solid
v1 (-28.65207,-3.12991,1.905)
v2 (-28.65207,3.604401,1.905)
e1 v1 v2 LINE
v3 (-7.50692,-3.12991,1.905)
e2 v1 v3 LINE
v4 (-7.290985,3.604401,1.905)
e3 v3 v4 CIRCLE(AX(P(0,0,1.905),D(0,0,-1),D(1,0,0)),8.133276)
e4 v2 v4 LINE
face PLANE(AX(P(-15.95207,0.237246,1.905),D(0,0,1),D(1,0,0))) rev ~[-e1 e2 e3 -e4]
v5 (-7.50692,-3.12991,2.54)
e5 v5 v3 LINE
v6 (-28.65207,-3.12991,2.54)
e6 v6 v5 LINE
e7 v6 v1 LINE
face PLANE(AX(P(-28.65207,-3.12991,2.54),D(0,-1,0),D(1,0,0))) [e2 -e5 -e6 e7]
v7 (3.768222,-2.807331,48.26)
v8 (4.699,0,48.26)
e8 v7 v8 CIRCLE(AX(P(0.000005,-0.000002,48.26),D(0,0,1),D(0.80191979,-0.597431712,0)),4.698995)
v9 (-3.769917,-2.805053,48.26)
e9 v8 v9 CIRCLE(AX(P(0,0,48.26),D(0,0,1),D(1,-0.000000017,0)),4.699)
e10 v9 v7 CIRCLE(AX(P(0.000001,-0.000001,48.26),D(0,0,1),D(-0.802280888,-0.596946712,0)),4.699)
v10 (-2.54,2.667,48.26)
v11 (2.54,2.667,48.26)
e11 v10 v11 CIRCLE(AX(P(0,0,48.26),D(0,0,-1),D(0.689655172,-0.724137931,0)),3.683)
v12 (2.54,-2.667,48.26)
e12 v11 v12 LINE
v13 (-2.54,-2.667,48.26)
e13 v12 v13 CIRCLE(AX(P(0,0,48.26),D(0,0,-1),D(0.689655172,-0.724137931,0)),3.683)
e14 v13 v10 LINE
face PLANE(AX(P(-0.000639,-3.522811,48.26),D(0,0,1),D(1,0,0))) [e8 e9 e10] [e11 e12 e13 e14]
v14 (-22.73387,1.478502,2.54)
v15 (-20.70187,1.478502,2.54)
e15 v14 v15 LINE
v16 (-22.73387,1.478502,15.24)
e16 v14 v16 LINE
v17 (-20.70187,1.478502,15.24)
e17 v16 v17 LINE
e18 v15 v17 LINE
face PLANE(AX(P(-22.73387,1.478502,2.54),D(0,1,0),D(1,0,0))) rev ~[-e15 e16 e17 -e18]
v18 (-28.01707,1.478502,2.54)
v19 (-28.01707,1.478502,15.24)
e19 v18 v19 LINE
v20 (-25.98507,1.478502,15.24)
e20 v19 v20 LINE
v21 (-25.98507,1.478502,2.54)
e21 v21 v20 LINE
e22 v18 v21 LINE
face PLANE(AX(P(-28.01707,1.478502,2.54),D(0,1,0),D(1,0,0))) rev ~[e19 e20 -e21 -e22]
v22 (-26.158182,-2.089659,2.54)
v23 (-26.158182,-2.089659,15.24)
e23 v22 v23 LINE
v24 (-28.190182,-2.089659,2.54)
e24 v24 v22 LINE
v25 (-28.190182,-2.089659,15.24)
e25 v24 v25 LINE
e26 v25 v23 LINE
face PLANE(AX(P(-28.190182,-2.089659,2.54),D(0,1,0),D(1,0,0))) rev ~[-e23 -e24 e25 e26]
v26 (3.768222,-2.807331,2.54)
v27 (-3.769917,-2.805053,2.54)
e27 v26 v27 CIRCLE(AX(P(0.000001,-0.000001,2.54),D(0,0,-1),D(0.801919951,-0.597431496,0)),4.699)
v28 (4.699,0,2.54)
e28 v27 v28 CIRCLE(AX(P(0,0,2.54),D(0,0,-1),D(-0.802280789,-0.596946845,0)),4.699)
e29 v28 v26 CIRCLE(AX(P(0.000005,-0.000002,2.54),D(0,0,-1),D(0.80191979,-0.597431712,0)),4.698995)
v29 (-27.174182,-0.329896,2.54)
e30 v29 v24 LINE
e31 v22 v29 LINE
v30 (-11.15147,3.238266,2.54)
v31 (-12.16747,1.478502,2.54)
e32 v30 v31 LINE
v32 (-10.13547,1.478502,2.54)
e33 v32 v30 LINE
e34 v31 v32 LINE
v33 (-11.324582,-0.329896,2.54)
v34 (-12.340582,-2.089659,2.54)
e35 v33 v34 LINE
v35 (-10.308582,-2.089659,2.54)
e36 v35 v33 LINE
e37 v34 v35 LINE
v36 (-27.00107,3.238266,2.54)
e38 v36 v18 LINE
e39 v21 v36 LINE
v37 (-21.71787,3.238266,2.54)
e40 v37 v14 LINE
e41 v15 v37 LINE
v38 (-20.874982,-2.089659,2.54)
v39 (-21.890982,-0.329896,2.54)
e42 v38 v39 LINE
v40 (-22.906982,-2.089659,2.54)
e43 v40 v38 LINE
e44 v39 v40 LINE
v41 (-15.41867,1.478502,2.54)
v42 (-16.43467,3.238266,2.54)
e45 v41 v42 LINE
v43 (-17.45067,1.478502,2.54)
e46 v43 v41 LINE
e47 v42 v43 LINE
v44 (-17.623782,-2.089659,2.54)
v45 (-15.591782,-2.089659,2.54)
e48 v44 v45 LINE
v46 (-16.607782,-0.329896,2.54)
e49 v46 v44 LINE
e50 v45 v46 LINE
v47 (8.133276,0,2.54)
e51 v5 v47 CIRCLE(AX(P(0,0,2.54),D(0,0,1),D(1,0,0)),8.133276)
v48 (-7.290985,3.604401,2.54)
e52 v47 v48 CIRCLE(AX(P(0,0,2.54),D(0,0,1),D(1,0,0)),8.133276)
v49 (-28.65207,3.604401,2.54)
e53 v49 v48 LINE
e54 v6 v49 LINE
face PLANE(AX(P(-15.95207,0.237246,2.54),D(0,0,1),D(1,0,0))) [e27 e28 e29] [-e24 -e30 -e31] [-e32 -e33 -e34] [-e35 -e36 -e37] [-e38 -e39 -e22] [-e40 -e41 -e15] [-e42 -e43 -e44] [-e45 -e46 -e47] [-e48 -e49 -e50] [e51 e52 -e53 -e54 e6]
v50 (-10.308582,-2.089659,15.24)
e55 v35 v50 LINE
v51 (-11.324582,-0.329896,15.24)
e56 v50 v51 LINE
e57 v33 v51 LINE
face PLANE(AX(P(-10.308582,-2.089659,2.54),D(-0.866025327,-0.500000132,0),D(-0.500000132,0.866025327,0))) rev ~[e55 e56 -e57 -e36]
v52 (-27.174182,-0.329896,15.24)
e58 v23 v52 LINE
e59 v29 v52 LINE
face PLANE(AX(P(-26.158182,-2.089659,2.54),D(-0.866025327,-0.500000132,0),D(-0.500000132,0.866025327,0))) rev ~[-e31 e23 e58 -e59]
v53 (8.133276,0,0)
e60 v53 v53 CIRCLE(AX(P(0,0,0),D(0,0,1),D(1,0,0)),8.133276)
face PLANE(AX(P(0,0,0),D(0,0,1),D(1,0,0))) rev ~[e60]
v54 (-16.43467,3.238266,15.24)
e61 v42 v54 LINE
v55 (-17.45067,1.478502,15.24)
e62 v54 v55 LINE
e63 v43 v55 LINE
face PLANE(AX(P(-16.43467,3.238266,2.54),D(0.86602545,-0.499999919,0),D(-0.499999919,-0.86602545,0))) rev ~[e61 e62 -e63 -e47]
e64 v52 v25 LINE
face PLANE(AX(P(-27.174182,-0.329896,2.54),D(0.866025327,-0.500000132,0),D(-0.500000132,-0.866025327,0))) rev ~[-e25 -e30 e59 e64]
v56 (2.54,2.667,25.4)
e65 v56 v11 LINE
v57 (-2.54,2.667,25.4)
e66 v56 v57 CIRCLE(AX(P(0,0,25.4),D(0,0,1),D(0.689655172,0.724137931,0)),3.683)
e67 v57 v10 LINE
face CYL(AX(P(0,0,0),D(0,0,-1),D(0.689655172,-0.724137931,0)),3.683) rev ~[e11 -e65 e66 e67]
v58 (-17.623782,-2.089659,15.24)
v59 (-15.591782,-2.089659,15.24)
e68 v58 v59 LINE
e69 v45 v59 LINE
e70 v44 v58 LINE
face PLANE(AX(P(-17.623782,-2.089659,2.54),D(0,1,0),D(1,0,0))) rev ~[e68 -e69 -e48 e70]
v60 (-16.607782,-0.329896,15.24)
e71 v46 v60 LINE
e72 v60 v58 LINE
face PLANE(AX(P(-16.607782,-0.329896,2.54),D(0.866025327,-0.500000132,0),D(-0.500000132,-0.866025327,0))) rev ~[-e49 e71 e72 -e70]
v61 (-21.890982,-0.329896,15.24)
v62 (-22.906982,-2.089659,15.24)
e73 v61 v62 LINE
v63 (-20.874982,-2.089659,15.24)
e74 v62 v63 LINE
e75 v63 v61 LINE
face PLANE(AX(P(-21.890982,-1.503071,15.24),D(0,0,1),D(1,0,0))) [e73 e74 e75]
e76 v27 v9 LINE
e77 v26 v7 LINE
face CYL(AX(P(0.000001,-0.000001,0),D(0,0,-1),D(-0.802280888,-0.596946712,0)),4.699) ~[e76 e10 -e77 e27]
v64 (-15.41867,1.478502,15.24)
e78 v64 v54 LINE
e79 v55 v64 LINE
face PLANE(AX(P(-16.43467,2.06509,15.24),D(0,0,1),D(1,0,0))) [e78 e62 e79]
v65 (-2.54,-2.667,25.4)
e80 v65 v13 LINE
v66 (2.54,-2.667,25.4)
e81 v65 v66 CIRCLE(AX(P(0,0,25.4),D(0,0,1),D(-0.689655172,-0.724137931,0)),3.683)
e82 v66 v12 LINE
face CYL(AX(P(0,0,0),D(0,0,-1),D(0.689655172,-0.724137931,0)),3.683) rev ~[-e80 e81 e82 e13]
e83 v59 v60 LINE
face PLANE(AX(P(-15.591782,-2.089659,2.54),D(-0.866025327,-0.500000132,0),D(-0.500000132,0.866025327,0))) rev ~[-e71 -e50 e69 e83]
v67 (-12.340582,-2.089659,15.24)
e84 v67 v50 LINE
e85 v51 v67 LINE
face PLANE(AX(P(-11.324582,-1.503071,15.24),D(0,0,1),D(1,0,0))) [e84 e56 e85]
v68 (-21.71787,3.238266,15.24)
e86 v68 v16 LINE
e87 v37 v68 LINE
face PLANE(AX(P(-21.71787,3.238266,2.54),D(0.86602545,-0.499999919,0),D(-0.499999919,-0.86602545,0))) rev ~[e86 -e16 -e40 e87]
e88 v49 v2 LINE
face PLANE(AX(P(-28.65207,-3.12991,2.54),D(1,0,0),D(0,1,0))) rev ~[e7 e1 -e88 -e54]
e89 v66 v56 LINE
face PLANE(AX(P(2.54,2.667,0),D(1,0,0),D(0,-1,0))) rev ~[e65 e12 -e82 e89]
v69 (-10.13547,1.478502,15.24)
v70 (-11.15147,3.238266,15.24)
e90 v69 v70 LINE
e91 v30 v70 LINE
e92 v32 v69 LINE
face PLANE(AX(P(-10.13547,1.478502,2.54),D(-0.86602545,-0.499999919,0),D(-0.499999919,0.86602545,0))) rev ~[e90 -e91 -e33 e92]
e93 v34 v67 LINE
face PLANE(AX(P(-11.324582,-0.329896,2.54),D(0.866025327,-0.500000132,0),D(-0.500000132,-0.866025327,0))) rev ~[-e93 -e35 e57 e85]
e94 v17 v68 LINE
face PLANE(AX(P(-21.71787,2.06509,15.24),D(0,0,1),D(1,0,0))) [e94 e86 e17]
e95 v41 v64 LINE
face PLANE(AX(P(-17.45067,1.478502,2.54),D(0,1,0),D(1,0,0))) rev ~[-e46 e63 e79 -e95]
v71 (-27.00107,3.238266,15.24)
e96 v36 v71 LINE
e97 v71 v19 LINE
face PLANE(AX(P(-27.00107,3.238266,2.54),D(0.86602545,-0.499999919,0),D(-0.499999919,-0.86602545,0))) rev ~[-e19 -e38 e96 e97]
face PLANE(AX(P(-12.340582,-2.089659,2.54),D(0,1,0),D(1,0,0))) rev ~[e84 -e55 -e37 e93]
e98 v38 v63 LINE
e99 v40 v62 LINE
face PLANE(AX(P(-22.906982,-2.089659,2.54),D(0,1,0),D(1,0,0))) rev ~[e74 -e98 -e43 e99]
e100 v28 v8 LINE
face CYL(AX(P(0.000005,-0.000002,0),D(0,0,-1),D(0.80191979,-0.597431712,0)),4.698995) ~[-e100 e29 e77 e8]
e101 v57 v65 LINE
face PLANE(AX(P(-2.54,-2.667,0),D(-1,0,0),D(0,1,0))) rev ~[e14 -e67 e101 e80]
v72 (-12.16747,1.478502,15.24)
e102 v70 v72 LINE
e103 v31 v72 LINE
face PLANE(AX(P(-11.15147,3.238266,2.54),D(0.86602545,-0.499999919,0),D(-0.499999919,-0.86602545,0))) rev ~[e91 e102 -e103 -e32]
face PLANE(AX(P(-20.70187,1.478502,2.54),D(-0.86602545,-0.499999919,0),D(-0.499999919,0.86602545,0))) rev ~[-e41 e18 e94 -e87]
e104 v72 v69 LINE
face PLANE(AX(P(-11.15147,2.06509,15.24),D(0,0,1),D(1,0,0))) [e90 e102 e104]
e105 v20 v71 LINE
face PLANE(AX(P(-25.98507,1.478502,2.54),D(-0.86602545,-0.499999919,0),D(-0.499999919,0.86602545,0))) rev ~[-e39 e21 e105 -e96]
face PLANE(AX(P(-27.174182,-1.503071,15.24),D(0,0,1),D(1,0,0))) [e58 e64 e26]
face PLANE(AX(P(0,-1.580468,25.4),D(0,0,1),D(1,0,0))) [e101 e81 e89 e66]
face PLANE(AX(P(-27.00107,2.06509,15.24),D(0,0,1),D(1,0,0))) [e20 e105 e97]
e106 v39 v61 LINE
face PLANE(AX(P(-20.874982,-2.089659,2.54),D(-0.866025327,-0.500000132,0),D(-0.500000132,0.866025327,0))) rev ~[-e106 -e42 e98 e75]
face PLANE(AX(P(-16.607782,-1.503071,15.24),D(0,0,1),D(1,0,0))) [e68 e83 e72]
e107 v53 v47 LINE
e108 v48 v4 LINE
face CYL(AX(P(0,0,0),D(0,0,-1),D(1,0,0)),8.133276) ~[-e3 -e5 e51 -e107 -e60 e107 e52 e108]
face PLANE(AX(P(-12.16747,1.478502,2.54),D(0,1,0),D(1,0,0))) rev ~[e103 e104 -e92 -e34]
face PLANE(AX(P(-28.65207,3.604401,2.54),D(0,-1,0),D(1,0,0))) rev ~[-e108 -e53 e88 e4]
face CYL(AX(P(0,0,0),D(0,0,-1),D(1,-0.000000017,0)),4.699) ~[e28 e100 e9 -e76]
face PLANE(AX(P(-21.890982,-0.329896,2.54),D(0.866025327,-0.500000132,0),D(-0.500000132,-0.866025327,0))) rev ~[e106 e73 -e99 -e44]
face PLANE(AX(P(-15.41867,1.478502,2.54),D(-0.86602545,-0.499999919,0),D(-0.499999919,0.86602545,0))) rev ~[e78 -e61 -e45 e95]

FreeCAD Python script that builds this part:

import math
import FreeCAD as App
import Part
import Sketcher

V = App.Vector
Q = App.Units.Quantity


def add_polygon(sketch, points):
    """Adds a closed chain of lines whose ends are joined by coincident constraints."""
    first, n = sketch.GeometryCount, len(points)
    for a, b in zip(points, points[1:] + points[:1]):
        sketch.addGeometry(Part.LineSegment(App.Vector(*a, 0), App.Vector(*b, 0)), False)
    for i in range(n):
        sketch.addConstraint(Sketcher.Constraint("Coincident", first + i, 2, first + (i + 1) % n, 1))

doc = App.newDocument("Part")
body = doc.addObject("PartDesign::Body", "Body")

# Sketch on XY plane
sketch1 = body.newObject("Sketcher::SketchObject", "Sketch")
sketch1.AttachmentSupport = (doc.getObject("XY_Plane"), [""])
sketch1.MapMode = "FlatFace"
sketch1.addGeometry([
    Part.ArcOfCircle(Part.Circle(V(0, 0, 0), V(0, 0, 1), 4.7), math.radians(0), math.radians(217)),  # 0
    Part.ArcOfCircle(Part.Circle(V(0, 0, 0), V(0, 0, 1), 4.7), math.radians(-143), math.radians(-37)),  # 1
    Part.ArcOfCircle(Part.Circle(V(0, 0, 0), V(0, 0, 1), 4.7), math.radians(-37), math.radians(0)),  # 2
    Part.ArcOfCircle(Part.Circle(V(0, 0, 0), V(0, 0, 1), 3.7), math.radians(-134), math.radians(-46)),  # 3
    Part.LineSegment(V(-2.5, -2.7, 0), V(-2.5, 2.7, 0)),  # 4
    Part.ArcOfCircle(Part.Circle(V(0, 0, 0), V(0, 0, 1), 3.7), math.radians(46), math.radians(134)),  # 5
    Part.LineSegment(V(2.5, 2.7, 0), V(2.5, -2.7, 0)),  # 6
], False)
sketch1.addConstraint([
    Sketcher.Constraint("Tangent", 0, 2, 1, 1),
    Sketcher.Constraint("Tangent", 1, 2, 2, 1),
    Sketcher.Constraint("Tangent", 2, 2, 0, 1),
    Sketcher.Constraint("Coincident", 3, 1, 4, 1),
    Sketcher.Constraint("Coincident", 4, 2, 5, 2),
    Sketcher.Constraint("Coincident", 5, 1, 6, 1),
    Sketcher.Constraint("Coincident", 6, 2, 3, 2),
    Sketcher.Constraint("Vertical", 4),
    Sketcher.Constraint("Vertical", 6),
    Sketcher.Constraint("Coincident", 0, 3, -1, 1),
    Sketcher.Constraint("Coincident", 3, 3, -1, 1),
    Sketcher.Constraint("Coincident", 5, 3, -1, 1),
    Sketcher.Constraint("Equal", 3, 5),
    Sketcher.Constraint("PointOnObject", 2, 2, -1),
    Sketcher.Constraint("Horizontal", 4, 2, 5, 1),
    Sketcher.Constraint("Radius", 0, Q("0.185 in")),
    Sketcher.Constraint("Radius", 3, Q("0.145 in")),
    Sketcher.Constraint("DistanceY", 4, 1, 4, 2, Q("0.21 in")),
    Sketcher.Constraint("DistanceX", -1, 1, 1, 2, 3.768222),
    Sketcher.Constraint("DistanceX", 0, 2, 2, 3, 3.769922),
])
pad1 = body.newObject("PartDesign::Pad", "Pad")
pad1.Profile = sketch1
pad1.Length = Q("1.9 in")

# Sketch on XY plane
sketch2 = body.newObject("Sketcher::SketchObject", "Sketch001")
sketch2.AttachmentSupport = (doc.getObject("XY_Plane"), [""])
sketch2.MapMode = "FlatFace"
sketch2.addGeometry([
    Part.ArcOfCircle(Part.Circle(V(0, 0, 0), V(0, 0, 1), 3.7), math.radians(-134), math.radians(-46)),
    Part.LineSegment(V(2.5, -2.7, 0), V(2.5, 2.7, 0)),
    Part.ArcOfCircle(Part.Circle(V(0, 0, 0), V(0, 0, 1), 3.7), math.radians(46), math.radians(134)),
    Part.LineSegment(V(-2.5, 2.7, 0), V(-2.5, -2.7, 0)),
], False)
sketch2.addConstraint([
    Sketcher.Constraint("Coincident", 0, 2, 1, 1),
    Sketcher.Constraint("Coincident", 1, 2, 2, 1),
    Sketcher.Constraint("Coincident", 2, 2, 3, 1),
    Sketcher.Constraint("Coincident", 3, 2, 0, 1),
    Sketcher.Constraint("Vertical", 1),
    Sketcher.Constraint("Vertical", 3),
    Sketcher.Constraint("Coincident", 0, 3, -1, 1),
    Sketcher.Constraint("Coincident", 2, 3, -1, 1),
    Sketcher.Constraint("Equal", 0, 2),
    Sketcher.Constraint("Horizontal", 1, 2, 2, 2),
    Sketcher.Constraint("Radius", 0, Q("0.145 in")),
    Sketcher.Constraint("DistanceY", 1, 1, 1, 2, Q("0.21 in")),
])
pad2 = body.newObject("PartDesign::Pad", "Pad001")
pad2.Profile = sketch2
pad2.Length = Q("1 in")

# Sketch on XY plane
sketch3 = body.newObject("Sketcher::SketchObject", "Sketch002")
sketch3.AttachmentSupport = (doc.getObject("XY_Plane"), [""])
sketch3.MapMode = "FlatFace"
sketch3.addGeometry(Part.Circle(V(0, 0, 0), V(0, 0, 1), 8), False)
sketch3.addConstraint([
    Sketcher.Constraint("Coincident", 0, 3, -1, 1),
    Sketcher.Constraint("Diameter", 0, 16.266552),
])
pad3 = body.newObject("PartDesign::Pad", "Pad002")
pad3.Profile = sketch3
pad3.Length = Q("0.1 in")

# Sketch on XY plane
sketch4 = body.newObject("Sketcher::SketchObject", "Sketch003")
sketch4.AttachmentSupport = (doc.getObject("XY_Plane"), [""])
sketch4.MapMode = "FlatFace"
sketch4.AttachmentOffset = App.Placement(V(0, 0, 0.1 * 25.4), App.Rotation())
add_polygon(sketch4, [(-29, 4), (-29, -3), (-3, -3), (-3, 4)])  # lines 0-3
sketch4.addConstraint([
    Sketcher.Constraint("Vertical", 0),
    Sketcher.Constraint("Horizontal", 1),
    Sketcher.Constraint("Vertical", 2),
    Sketcher.Constraint("Horizontal", 3),
    Sketcher.Constraint("DistanceX", 1, 1, 1, 2, Q("1 in")),
    Sketcher.Constraint("DistanceY", 0, 2, 0, 1, 6.734311),
    Sketcher.Constraint("DistanceY", -1, 1, 2, 2, 3.604401),
    Sketcher.Constraint("DistanceX", 0, 2, -1, 1, 28.65207),
])
pad4 = body.newObject("PartDesign::Pad", "Pad003")
pad4.Profile = sketch4
pad4.Length = Q("0.025 in")
pad4.Reversed = True

# Sketch on XY plane
sketch5 = body.newObject("Sketcher::SketchObject", "Sketch004")
sketch5.AttachmentSupport = (doc.getObject("XY_Plane"), [""])
sketch5.MapMode = "FlatFace"
sketch5.AttachmentOffset = App.Placement(V(0, 0, 0.1 * 25.4), App.Rotation())
add_polygon(sketch5, [(-27, 3.2), (-28, 1.5), (-26, 1.5)])  # lines 0-2
add_polygon(sketch5, [(-22.7, 1.5), (-20.7, 1.5), (-21.7, 3.2)])  # lines 3-5
add_polygon(sketch5, [(-17.5, 1.5), (-15.4, 1.5), (-16.4, 3.2)])  # lines 6-8
add_polygon(sketch5, [(-12.2, 1.5), (-10.1, 1.5), (-11.2, 3.2)])  # lines 9-11
add_polygon(sketch5, [(-27.2, -0.3), (-28.2, -2.1), (-26.2, -2.1)])  # lines 12-14
add_polygon(sketch5, [(-22.9, -2.1), (-20.9, -2.1), (-21.9, -0.3)])  # lines 15-17
add_polygon(sketch5, [(-17.6, -2.1), (-15.6, -2.1), (-16.6, -0.3)])  # lines 18-20
add_polygon(sketch5, [(-12.3, -2.1), (-10.3, -2.1), (-11.3, -0.3)])  # lines 21-23
sketch5.addConstraint([
    Sketcher.Constraint("Horizontal", 1),
    Sketcher.Constraint("Horizontal", 3),
    Sketcher.Constraint("Horizontal", 6),
    Sketcher.Constraint("Horizontal", 9),
    Sketcher.Constraint("Horizontal", 13),
    Sketcher.Constraint("Horizontal", 15),
    Sketcher.Constraint("Horizontal", 18),
    Sketcher.Constraint("Horizontal", 21),
    Sketcher.Constraint("Parallel", 2, 4),
    Sketcher.Constraint("Parallel", 0, 5),
    Sketcher.Constraint("Parallel", 4, 7),
    Sketcher.Constraint("Parallel", 5, 8),
    Sketcher.Constraint("Parallel", 7, 10),
    Sketcher.Constraint("Parallel", 8, 11),
    Sketcher.Constraint("Parallel", 11, 12),
    Sketcher.Constraint("Parallel", 10, 14),
    Sketcher.Constraint("Parallel", 14, 16),
    Sketcher.Constraint("Parallel", 12, 17),
    Sketcher.Constraint("Parallel", 16, 19),
    Sketcher.Constraint("Parallel", 17, 20),
    Sketcher.Constraint("Parallel", 19, 22),
    Sketcher.Constraint("Parallel", 20, 23),
    Sketcher.Constraint("Horizontal", 1, 2, 3, 2),
    Sketcher.Constraint("Horizontal", 2, 2, 4, 2),
    Sketcher.Constraint("Horizontal", 5, 2, 6, 2),
    Sketcher.Constraint("Horizontal", 4, 2, 7, 2),
    Sketcher.Constraint("Horizontal", 8, 2, 9, 2),
    Sketcher.Constraint("Horizontal", 7, 2, 10, 2),
    Sketcher.Constraint("Horizontal", 13, 2, 15, 2),
    Sketcher.Constraint("Horizontal", 14, 2, 16, 2),
    Sketcher.Constraint("Horizontal", 17, 2, 18, 2),
    Sketcher.Constraint("Horizontal", 16, 2, 19, 2),
    Sketcher.Constraint("Horizontal", 20, 2, 21, 2),
    Sketcher.Constraint("Horizontal", 19, 2, 22, 2),
    Sketcher.Constraint("Equal", 9, 13),
    Sketcher.Constraint("Equal", 0, 2),
    Sketcher.Constraint("Angle", 0, Q("-119.999995 deg")),
    Sketcher.Constraint("DistanceX", 1, 1, 1, 2, Q("0.08 in")),
    Sketcher.Constraint("DistanceX", 1, 2, 3, 2, Q("0.208 in")),
    Sketcher.Constraint("DistanceX", 3, 2, 6, 2, Q("0.208 in")),
    Sketcher.Constraint("DistanceX", 6, 2, 9, 2, Q("0.208 in")),
    Sketcher.Constraint("DistanceX", 13, 2, 15, 2, Q("0.208 in")),
    Sketcher.Constraint("DistanceX", 15, 2, 18, 2, Q("0.208 in")),
    Sketcher.Constraint("DistanceX", 18, 2, 21, 2, Q("0.208 in")),
    Sketcher.Constraint("DistanceX", 0, 2, -1, 1, 28.01707),
    Sketcher.Constraint("DistanceX", 12, 2, -1, 1, 28.190182),
    Sketcher.Constraint("DistanceY", 12, 2, -1, 1, 2.089659),
    Sketcher.Constraint("DistanceY", 12, 2, 0, 2, 3.568161),
])
pad5 = body.newObject("PartDesign::Pad", "Pad004")
pad5.Profile = sketch5
pad5.Length = Q("0.5 in")

doc.recompute()
